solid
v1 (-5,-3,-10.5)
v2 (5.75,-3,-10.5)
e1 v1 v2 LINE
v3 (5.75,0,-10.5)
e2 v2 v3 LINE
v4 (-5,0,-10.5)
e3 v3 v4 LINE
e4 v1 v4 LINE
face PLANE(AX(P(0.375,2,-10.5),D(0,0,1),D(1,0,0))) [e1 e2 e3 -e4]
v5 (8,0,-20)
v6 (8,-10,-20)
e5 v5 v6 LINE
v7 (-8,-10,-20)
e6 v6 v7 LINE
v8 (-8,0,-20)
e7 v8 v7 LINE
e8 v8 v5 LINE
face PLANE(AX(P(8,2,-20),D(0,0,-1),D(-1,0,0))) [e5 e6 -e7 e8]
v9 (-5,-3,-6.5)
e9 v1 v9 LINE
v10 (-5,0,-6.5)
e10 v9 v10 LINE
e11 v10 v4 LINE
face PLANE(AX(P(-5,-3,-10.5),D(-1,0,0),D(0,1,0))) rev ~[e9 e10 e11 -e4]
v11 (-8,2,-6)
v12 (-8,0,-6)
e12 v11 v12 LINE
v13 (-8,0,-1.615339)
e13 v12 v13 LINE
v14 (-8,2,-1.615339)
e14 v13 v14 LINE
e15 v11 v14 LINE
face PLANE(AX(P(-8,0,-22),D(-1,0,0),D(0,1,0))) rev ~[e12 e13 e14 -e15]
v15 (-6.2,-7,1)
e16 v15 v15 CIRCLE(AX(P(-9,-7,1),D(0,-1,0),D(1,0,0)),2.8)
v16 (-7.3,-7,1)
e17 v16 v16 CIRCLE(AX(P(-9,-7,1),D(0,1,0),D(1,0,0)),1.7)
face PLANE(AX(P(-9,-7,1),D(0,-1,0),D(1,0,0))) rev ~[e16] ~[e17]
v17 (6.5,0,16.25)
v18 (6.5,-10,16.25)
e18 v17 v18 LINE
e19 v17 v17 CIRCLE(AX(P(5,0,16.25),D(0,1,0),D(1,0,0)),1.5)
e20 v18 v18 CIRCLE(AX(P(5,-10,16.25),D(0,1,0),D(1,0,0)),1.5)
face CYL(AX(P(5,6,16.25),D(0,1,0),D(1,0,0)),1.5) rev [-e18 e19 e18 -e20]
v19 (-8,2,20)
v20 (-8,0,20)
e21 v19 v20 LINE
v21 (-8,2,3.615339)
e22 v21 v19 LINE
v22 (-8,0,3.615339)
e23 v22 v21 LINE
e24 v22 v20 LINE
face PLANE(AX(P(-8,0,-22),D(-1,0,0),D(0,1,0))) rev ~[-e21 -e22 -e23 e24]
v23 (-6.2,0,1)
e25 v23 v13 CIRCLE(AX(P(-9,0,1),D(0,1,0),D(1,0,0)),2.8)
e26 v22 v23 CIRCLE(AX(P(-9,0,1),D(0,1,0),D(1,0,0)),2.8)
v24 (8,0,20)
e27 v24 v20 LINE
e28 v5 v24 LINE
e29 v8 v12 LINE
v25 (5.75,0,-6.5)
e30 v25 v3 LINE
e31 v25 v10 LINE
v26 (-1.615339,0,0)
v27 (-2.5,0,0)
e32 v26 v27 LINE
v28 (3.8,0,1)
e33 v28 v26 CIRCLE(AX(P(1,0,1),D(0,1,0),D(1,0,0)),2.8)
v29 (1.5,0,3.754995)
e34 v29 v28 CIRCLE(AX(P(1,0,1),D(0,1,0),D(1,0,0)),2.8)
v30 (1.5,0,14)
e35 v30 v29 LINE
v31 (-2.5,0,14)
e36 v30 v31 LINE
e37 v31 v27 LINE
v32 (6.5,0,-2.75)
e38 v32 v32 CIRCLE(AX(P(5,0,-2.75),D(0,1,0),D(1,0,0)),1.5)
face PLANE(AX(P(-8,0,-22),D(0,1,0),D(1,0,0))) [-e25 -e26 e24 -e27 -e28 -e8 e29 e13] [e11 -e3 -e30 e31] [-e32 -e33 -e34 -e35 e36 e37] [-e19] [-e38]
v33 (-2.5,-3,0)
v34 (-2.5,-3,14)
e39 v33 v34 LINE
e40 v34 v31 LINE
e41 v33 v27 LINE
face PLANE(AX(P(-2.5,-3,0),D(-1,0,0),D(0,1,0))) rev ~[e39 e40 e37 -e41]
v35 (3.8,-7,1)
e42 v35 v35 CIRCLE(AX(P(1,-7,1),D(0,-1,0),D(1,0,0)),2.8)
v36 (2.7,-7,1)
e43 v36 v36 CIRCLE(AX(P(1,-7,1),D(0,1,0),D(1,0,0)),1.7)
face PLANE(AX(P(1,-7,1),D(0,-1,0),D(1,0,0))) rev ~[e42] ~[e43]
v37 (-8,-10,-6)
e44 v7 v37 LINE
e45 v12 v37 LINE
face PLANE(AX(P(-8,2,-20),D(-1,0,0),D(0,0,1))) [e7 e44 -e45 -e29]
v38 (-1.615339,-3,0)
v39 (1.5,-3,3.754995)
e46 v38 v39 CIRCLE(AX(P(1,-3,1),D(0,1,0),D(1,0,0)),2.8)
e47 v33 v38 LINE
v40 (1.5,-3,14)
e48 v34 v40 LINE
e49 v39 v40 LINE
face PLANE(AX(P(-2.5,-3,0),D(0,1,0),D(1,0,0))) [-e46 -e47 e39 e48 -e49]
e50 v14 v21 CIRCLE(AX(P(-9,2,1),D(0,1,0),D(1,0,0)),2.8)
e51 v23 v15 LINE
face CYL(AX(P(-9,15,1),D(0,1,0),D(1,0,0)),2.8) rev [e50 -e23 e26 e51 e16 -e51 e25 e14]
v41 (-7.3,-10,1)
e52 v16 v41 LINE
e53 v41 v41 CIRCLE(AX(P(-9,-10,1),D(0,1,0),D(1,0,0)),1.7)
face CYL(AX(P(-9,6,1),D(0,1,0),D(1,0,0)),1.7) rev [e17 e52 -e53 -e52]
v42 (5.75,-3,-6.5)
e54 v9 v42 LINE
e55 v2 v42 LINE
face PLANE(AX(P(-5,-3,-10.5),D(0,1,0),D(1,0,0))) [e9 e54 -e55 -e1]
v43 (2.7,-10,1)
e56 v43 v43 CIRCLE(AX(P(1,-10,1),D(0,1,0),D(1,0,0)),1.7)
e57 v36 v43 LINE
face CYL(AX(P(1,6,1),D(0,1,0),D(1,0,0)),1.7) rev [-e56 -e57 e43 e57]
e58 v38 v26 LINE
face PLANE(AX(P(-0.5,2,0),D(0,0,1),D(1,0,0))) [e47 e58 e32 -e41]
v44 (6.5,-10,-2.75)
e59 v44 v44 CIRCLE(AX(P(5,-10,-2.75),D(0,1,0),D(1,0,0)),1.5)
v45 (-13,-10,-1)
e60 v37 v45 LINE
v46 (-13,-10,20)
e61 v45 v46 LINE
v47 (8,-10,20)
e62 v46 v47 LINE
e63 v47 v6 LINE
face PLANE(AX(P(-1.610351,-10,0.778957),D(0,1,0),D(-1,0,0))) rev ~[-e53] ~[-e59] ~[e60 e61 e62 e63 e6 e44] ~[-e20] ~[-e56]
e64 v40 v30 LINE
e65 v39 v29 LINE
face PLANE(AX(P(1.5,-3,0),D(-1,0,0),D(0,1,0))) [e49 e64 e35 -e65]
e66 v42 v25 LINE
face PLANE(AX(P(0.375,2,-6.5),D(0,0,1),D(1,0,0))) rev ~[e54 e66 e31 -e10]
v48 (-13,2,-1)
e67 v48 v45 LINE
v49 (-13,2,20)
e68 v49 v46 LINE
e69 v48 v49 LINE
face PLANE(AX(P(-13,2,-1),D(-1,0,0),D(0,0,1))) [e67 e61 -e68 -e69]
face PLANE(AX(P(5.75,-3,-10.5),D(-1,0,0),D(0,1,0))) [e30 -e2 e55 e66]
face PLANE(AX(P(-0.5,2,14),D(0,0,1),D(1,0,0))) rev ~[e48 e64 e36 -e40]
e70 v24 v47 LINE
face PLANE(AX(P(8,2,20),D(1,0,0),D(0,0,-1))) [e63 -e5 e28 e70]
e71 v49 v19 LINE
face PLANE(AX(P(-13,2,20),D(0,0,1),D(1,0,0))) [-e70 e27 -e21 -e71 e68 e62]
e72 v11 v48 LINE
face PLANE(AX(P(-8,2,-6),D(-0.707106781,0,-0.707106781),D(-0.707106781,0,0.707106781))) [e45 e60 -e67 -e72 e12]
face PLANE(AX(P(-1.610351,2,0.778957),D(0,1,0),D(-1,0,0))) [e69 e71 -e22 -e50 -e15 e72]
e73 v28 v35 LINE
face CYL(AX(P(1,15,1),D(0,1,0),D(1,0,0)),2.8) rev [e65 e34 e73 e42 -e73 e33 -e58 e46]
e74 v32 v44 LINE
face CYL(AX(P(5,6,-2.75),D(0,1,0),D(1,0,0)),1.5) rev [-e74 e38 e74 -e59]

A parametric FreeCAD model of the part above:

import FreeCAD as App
import Part
import Sketcher
from FreeCAD import Vector
Q = App.Units.Quantity


def add_polygon(sketch, points):
    """Adds a closed chain of lines whose ends are joined by coincident constraints."""
    first, n = sketch.GeometryCount, len(points)
    for a, b in zip(points, points[1:] + points[:1]):
        sketch.addGeometry(Part.LineSegment(App.Vector(*a, 0), App.Vector(*b, 0)), False)
    for i in range(n):
        sketch.addConstraint(Sketcher.Constraint("Coincident", first + i, 2, first + (i + 1) % n, 1))

doc = App.newDocument("Part")
body = doc.addObject("PartDesign::Body", "Body")

sketch1 = doc.addObject("Sketcher::SketchObject", "Sketch")
body.addObject(sketch1)
sketch1.AttachmentSupport = (doc.XY_Plane, [""])
sketch1.MapMode = "FlatFace"
sketch1.AttachmentOffset = App.Placement(Vector(0, 0, -22), App.Rotation())
add_polygon(sketch1, [(-8, 10), (-8, 0), (12, 0), (12, 10)])
sketch1.addConstraint(Sketcher.Constraint("Vertical", 0))
sketch1.addConstraint(Sketcher.Constraint("Horizontal", 1))
sketch1.addConstraint(Sketcher.Constraint("Vertical", 2))
sketch1.addConstraint(Sketcher.Constraint("Horizontal", 3))
sketch1.addConstraint(Sketcher.Constraint("PointOnObject", 0, 2, -1))
sketch1.addConstraint(Sketcher.Constraint("DistanceX", 1, 1, 1, 2, Q("20 mm")))
sketch1.addConstraint(Sketcher.Constraint("DistanceY", 0, 2, 0, 1, Q("10 mm")))
sketch1.addConstraint(Sketcher.Constraint("DistanceX", 0, 2, -1, 1, Q("8 mm")))
pad1 = doc.addObject("PartDesign::Pad", "Pad")
body.addObject(pad1)
pad1.Profile = sketch1
pad1.Length = 44
body2 = doc.addObject("PartDesign::Body", "Body001")

sketch2 = doc.addObject("Sketcher::SketchObject", "Sketch001")
body2.addObject(sketch2)
sketch2.AttachmentSupport = (doc.getObject("XY_Plane001"), [""])
sketch2.MapMode = "FlatFace"
sketch2.AttachmentOffset = App.Placement(Vector(0, 0, -10.5), App.Rotation())
add_polygon(sketch2, [(-5, 7), (-5, -3), (6, -3), (6, 7)])
sketch2.addConstraint(Sketcher.Constraint("Vertical", 0))
sketch2.addConstraint(Sketcher.Constraint("Horizontal", 1))
sketch2.addConstraint(Sketcher.Constraint("Vertical", 2))
sketch2.addConstraint(Sketcher.Constraint("Horizontal", 3))
sketch2.addConstraint(Sketcher.Constraint("DistanceY", 0, 2, 0, 1, Q("10 mm")))
sketch2.addConstraint(Sketcher.Constraint("DistanceX", 0, 2, -1, 1, Q("5 mm")))
sketch2.addConstraint(Sketcher.Constraint("DistanceY", 0, 2, -1, 1, Q("3 mm")))
sketch2.addConstraint(Sketcher.Constraint("DistanceX", 1, 1, 1, 2, Q("10.75 mm")))
pad2 = doc.addObject("PartDesign::Pad", "Pad001")
body2.addObject(pad2)
pad2.Profile = sketch2
pad2.Length = 4
body3 = doc.addObject("PartDesign::Body", "Body002")
body3.AllowCompound = True

sketch3 = doc.addObject("Sketcher::SketchObject", "Sketch002")
body3.addObject(sketch3)
sketch3.AttachmentSupport = (doc.getObject("XY_Plane002"), [""])
sketch3.MapMode = "FlatFace"
add_polygon(sketch3, [(-2.5, 7), (-2.5, -3), (1.5, -3), (1.5, 7)])
sketch3.addConstraint(Sketcher.Constraint("Vertical", 0))
sketch3.addConstraint(Sketcher.Constraint("Horizontal", 1))
sketch3.addConstraint(Sketcher.Constraint("Vertical", 2))
sketch3.addConstraint(Sketcher.Constraint("Horizontal", 3))
sketch3.addConstraint(Sketcher.Constraint("DistanceX", 1, 1, 1, 2, Q("4 mm")))
sketch3.addConstraint(Sketcher.Constraint("DistanceY", 0, 2, 0, 1, Q("10 mm")))
sketch3.addConstraint(Sketcher.Constraint("DistanceY", 0, 2, -1, 1, Q("3 mm")))
sketch3.addConstraint(Sketcher.Constraint("DistanceX", 0, 2, -1, 1, Q("2.5 mm")))
pad3 = doc.addObject("PartDesign::Pad", "Pad002")
body3.addObject(pad3)
pad3.Profile = sketch3
pad3.Length = 14
doc.recompute()

boolean = doc.addObject("PartDesign::Boolean", "Boolean")
body3.addObject(boolean)
boolean.Type = "Fuse"
boolean.addObjects([body2])
body4 = doc.addObject("PartDesign::Body", "Body003")

sketch4 = doc.addObject("Sketcher::SketchObject", "Sketch003")
body4.addObject(sketch4)
sketch4.AttachmentSupport = (doc.getObject("XY_Plane003"), [""])
sketch4.MapMode = "FlatFace"
sketch4.addGeometry(Part.Circle(Vector(0, 0, 0), Vector(0, 0, 1), 2.8), False)
sketch4.addConstraint(Sketcher.Constraint("Coincident", 0, 3, -1, 1))
sketch4.addConstraint(Sketcher.Constraint("Diameter", 0, Q("5.6 mm")))
pad4 = doc.addObject("PartDesign::Pad", "Pad003")
body4.addObject(pad4)
pad4.Profile = sketch4
pad4.Length = 22
body5 = doc.addObject("PartDesign::Body", "Body004")
doc.recompute()

body4.Placement = App.Placement(Vector(0, 0, 0), App.Rotation(Vector(1, 0, 0), 90))
boolean2 = doc.addObject("PartDesign::Boolean", "Boolean001")
body5.addObject(boolean2)
boolean2.Type = "Fuse"
boolean2.addObjects([body4])
body6 = doc.addObject("PartDesign::Body", "Body005")
doc.recompute()

body5.Placement = App.Placement(Vector(-9, 15, 1), App.Rotation(Vector(0, 0, 1), 0))
boolean3 = doc.addObject("PartDesign::Boolean", "Boolean002")
body6.addObject(boolean3)
boolean3.Type = "Fuse"
boolean3.addObjects([body5])
body7 = doc.addObject("PartDesign::Body", "Body006")

sketch5 = doc.addObject("Sketcher::SketchObject", "Sketch004")
body7.addObject(sketch5)
sketch5.AttachmentSupport = (doc.getObject("XY_Plane006"), [""])
sketch5.MapMode = "FlatFace"
sketch5.addGeometry(Part.Circle(Vector(0, 0, 0), Vector(0, 0, 1), 1.5), False)
sketch5.addConstraint(Sketcher.Constraint("Coincident", 0, 3, -1, 1))
sketch5.addConstraint(Sketcher.Constraint("Diameter", 0, Q("3 mm")))
pad5 = doc.addObject("PartDesign::Pad", "Pad004")
body7.addObject(pad5)
pad5.Profile = sketch5
pad5.Length = 22
body8 = doc.addObject("PartDesign::Body", "Body007")
doc.recompute()

body7.Placement = App.Placement(Vector(0, 0, 0), App.Rotation(Vector(1, 0, 0), 90))
boolean4 = doc.addObject("PartDesign::Boolean", "Boolean003")
body8.addObject(boolean4)
boolean4.Type = "Fuse"
boolean4.addObjects([body7])
body9 = doc.addObject("PartDesign::Body", "Body008")
doc.recompute()

body8.Placement = App.Placement(Vector(5, 6, 16.25), App.Rotation(Vector(0, 0, 1), 0))
boolean5 = doc.addObject("PartDesign::Boolean", "Boolean004")
body9.addObject(boolean5)
boolean5.Type = "Fuse"
boolean5.addObjects([body8])
body10 = doc.addObject("PartDesign::Body", "Body009")

sketch6 = doc.addObject("Sketcher::SketchObject", "Sketch005")
body10.addObject(sketch6)
sketch6.AttachmentSupport = (doc.getObject("XY_Plane009"), [""])
sketch6.MapMode = "FlatFace"
sketch6.addGeometry(Part.Circle(Vector(0, 0, 0), Vector(0, 0, 1), 1.5), False)
sketch6.addConstraint(Sketcher.Constraint("Coincident", 0, 3, -1, 1))
sketch6.addConstraint(Sketcher.Constraint("Diameter", 0, Q("3 mm")))
pad6 = doc.addObject("PartDesign::Pad", "Pad005")
body10.addObject(pad6)
pad6.Profile = sketch6
pad6.Length = 22
body11 = doc.addObject("PartDesign::Body", "Body010")
doc.recompute()

body10.Placement = App.Placement(Vector(0, 0, 0), App.Rotation(Vector(1, 0, 0), 90))
boolean6 = doc.addObject("PartDesign::Boolean", "Boolean005")
body11.addObject(boolean6)
boolean6.Type = "Fuse"
boolean6.addObjects([body10])
body12 = doc.addObject("PartDesign::Body", "Body011")
doc.recompute()

body11.Placement = App.Placement(Vector(5, 6, -2.75), App.Rotation(Vector(0, 0, 1), 0))
boolean7 = doc.addObject("PartDesign::Boolean", "Boolean006")
body12.addObject(boolean7)
boolean7.Type = "Fuse"
boolean7.addObjects([body11])
body13 = doc.addObject("PartDesign::Body", "Body012")

sketch7 = doc.addObject("Sketcher::SketchObject", "Sketch006")
body13.addObject(sketch7)
sketch7.AttachmentSupport = (doc.getObject("XY_Plane012"), [""])
sketch7.MapMode = "FlatFace"
sketch7.addGeometry(Part.Circle(Vector(0, 0, 0), Vector(0, 0, 1), 1.7), False)
sketch7.addConstraint(Sketcher.Constraint("Coincident", 0, 3, -1, 1))
sketch7.addConstraint(Sketcher.Constraint("Diameter", 0, Q("3.4 mm")))
pad7 = doc.addObject("PartDesign::Pad", "Pad006")
body13.addObject(pad7)
pad7.Profile = sketch7
pad7.Length = 22
body14 = doc.addObject("PartDesign::Body", "Body013")
doc.recompute()

body13.Placement = App.Placement(Vector(0, 0, 0), App.Rotation(Vector(1, 0, 0), 90))
boolean8 = doc.addObject("PartDesign::Boolean", "Boolean007")
body14.addObject(boolean8)
boolean8.Type = "Fuse"
boolean8.addObjects([body13])
body15 = doc.addObject("PartDesign::Body", "Body014")
doc.recompute()

body14.Placement = App.Placement(Vector(-9, 6, 1), App.Rotation(Vector(0, 0, 1), 0))
boolean9 = doc.addObject("PartDesign::Boolean", "Boolean008")
body15.addObject(boolean9)
boolean9.Type = "Fuse"
boolean9.addObjects([body14])
body16 = doc.addObject("PartDesign::Body", "Body015")

sketch8 = doc.addObject("Sketcher::SketchObject", "Sketch007")
body16.addObject(sketch8)
sketch8.AttachmentSupport = (doc.getObject("XY_Plane015"), [""])
sketch8.MapMode = "FlatFace"
sketch8.addGeometry(Part.Circle(Vector(0, 0, 0), Vector(0, 0, 1), 1.7), False)
sketch8.addConstraint(Sketcher.Constraint("Coincident", 0, 3, -1, 1))
sketch8.addConstraint(Sketcher.Constraint("Diameter", 0, Q("3.4 mm")))
pad8 = doc.addObject("PartDesign::Pad", "Pad007")
body16.addObject(pad8)
pad8.Profile = sketch8
pad8.Length = 22
body17 = doc.addObject("PartDesign::Body", "Body016")
doc.recompute()

body16.Placement = App.Placement(Vector(0, 0, 0), App.Rotation(Vector(1, 0, 0), 90))
boolean10 = doc.addObject("PartDesign::Boolean", "Boolean009")
body17.addObject(boolean10)
boolean10.Type = "Fuse"
boolean10.addObjects([body16])
body18 = doc.addObject("PartDesign::Body", "Body017")
doc.recompute()

body17.Placement = App.Placement(Vector(1, 6, 1), App.Rotation(Vector(0, 0, 1), 0))
boolean11 = doc.addObject("PartDesign::Boolean", "Boolean010")
body18.addObject(boolean11)
boolean11.Type = "Fuse"
boolean11.addObjects([body17])
body19 = doc.addObject("PartDesign::Body", "Body018")

sketch9 = doc.addObject("Sketcher::SketchObject", "Sketch008")
body19.addObject(sketch9)
sketch9.AttachmentSupport = (doc.getObject("XY_Plane018"), [""])
sketch9.MapMode = "FlatFace"
sketch9.addGeometry(Part.Circle(Vector(0, 0, 0), Vector(0, 0, 1), 2.8), False)
sketch9.addConstraint(Sketcher.Constraint("Coincident", 0, 3, -1, 1))
sketch9.addConstraint(Sketcher.Constraint("Diameter", 0, Q("5.6 mm")))
pad9 = doc.addObject("PartDesign::Pad", "Pad008")
body19.addObject(pad9)
pad9.Profile = sketch9
pad9.Length = 22
body20 = doc.addObject("PartDesign::Body", "Body019")
doc.recompute()

body19.Placement = App.Placement(Vector(0, 0, 0), App.Rotation(Vector(1, 0, 0), 90))
boolean12 = doc.addObject("PartDesign::Boolean", "Boolean011")
body20.addObject(boolean12)
boolean12.Type = "Fuse"
boolean12.addObjects([body19])
body21 = doc.addObject("PartDesign::Body", "Body020")
body21.AllowCompound = True
doc.recompute()

body20.Placement = App.Placement(Vector(1, 15, 1), App.Rotation(Vector(0, 0, 1), 0))
boolean13 = doc.addObject("PartDesign::Boolean", "Boolean012")
body21.addObject(boolean13)
boolean13.Type = "Fuse"
boolean13.addObjects([body20])
doc.recompute()

boolean14 = doc.addObject("PartDesign::Boolean", "Boolean013")
body21.addObject(boolean14)
boolean14.Type = "Fuse"
boolean14.addObjects([body6])
doc.recompute()

boolean15 = doc.addObject("PartDesign::Boolean", "Boolean014")
body21.addObject(boolean15)
boolean15.Type = "Fuse"
boolean15.addObjects([body9])
doc.recompute()

boolean16 = doc.addObject("PartDesign::Boolean", "Boolean015")
body21.addObject(boolean16)
boolean16.Type = "Fuse"
boolean16.addObjects([body12])
doc.recompute()

boolean17 = doc.addObject("PartDesign::Boolean", "Boolean016")
body21.addObject(boolean17)
boolean17.Type = "Fuse"
boolean17.addObjects([body15])
doc.recompute()

boolean18 = doc.addObject("PartDesign::Boolean", "Boolean017")
body21.addObject(boolean18)
boolean18.Type = "Fuse"
boolean18.addObjects([body18])
body22 = doc.addObject("PartDesign::Body", "Body021")

sketch10 = doc.addObject("Sketcher::SketchObject", "Sketch009")
body22.addObject(sketch10)
sketch10.AttachmentSupport = (doc.getObject("XZ_Plane021"), [""])
sketch10.MapMode = "FlatFace"
sketch10.AttachmentOffset = App.Placement(Vector(0, 0, -2), App.Rotation())
add_polygon(sketch10, [(8, 20), (-13, 20), (-13, -1), (-8, -6), (-8, -20), (8, -20)])
sketch10.addConstraint(Sketcher.Constraint("Horizontal", 0))
sketch10.addConstraint(Sketcher.Constraint("Vertical", 1))
sketch10.addConstraint(Sketcher.Constraint("Vertical", 3))
sketch10.addConstraint(Sketcher.Constraint("Horizontal", 4))
sketch10.addConstraint(Sketcher.Constraint("Vertical", 5))
sketch10.addConstraint(Sketcher.Constraint("Symmetric", 3, 2, 5, 2, -1, 1))
sketch10.addConstraint(Sketcher.Constraint("Equal", 0, 1))
sketch10.addConstraint(Sketcher.Constraint("DistanceX", 0, 2, 0, 1, Q("21 mm")))
sketch10.addConstraint(Sketcher.Constraint("DistanceX", 4, 1, 4, 2, Q("16 mm")))
sketch10.addConstraint(Sketcher.Constraint("DistanceY", 3, 2, 3, 1, Q("14 mm")))
sketch10.addConstraint(Sketcher.Constraint("DistanceY", 5, 1, 5, 2, Q("40 mm")))
pad10 = doc.addObject("PartDesign::Pad", "Pad009")
body22.addObject(pad10)
pad10.Profile = sketch10
pad10.Length = 12
doc.recompute()

boolean19 = doc.addObject("PartDesign::Boolean", "Boolean018")
body22.addObject(boolean19)
boolean19.Type = "Cut"
boolean19.addObjects([body21])
doc.recompute()

boolean20 = doc.addObject("PartDesign::Boolean", "Boolean019")
body22.addObject(boolean20)
boolean20.Type = "Cut"
boolean20.addObjects([body3])
doc.recompute()

boolean21 = doc.addObject("PartDesign::Boolean", "Boolean020")
body22.addObject(boolean21)
boolean21.Type = "Cut"
boolean21.addObjects([body])

doc.recompute()
